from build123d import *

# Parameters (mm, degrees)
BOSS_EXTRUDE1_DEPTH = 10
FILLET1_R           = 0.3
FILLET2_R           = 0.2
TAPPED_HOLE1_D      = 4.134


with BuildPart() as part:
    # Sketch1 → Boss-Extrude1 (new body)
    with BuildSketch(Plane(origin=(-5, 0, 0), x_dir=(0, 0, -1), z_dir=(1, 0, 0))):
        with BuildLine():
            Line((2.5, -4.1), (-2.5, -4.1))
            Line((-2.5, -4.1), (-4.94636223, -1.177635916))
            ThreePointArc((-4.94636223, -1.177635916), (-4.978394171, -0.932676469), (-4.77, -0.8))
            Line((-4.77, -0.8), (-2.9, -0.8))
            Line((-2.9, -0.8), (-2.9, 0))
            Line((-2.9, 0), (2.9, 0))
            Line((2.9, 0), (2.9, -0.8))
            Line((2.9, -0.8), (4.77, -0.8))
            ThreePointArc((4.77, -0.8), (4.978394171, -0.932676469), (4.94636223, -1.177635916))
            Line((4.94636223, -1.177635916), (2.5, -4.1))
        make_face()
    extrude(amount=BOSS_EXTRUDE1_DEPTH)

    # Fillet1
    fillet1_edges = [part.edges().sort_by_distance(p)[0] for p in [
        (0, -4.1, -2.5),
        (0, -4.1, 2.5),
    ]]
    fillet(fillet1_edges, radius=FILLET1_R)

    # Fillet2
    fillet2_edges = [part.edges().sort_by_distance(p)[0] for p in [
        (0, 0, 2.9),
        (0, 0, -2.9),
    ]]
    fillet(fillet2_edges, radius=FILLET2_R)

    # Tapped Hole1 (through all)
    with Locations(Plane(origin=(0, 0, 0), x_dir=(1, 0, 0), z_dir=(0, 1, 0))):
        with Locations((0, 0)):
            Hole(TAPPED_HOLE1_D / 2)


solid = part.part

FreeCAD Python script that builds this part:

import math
import FreeCAD as App
import Part
import Sketcher

V = App.Vector
Q = App.Units.Quantity


def edges_at(feature, points):
    """Names of the edges that pass closest to the given points."""
    edges = feature.Shape.Edges
    near = lambda p: min(range(len(edges)), key=lambda i: edges[i].distToShape(Part.Vertex(*p))[0])
    return sorted({f"Edge{near(p) + 1}" for p in points})

doc = App.newDocument("Part")
body = doc.addObject("PartDesign::Body", "Body")

sketch1 = doc.addObject("Sketcher::SketchObject", "Sketch")
body.addObject(sketch1)
sketch1.AttachmentSupport = (doc.YZ_Plane, [""])
sketch1.MapMode = "FlatFace"
sketch1.AttachmentOffset = App.Placement(V(0, 0, -5), App.Rotation())
sketch1.addGeometry([
    Part.LineSegment(V(-4.1, 2.5, 0), V(-4.1, -2.5, 0)),
    Part.LineSegment(V(-4.1, -2.5, 0), V(-1.177636, -4.946362, 0)),
    Part.ArcOfCircle(Part.Circle(V(-1.03, -4.77, 0), V(0, 0, 1), 0.23), math.radians(-129.933292), math.radians(0)),
    Part.LineSegment(V(-0.8, -4.77, 0), V(-0.8, -2.9, 0)),
    Part.LineSegment(V(-0.8, -2.9, 0), V(0, -2.9, 0)),
    Part.LineSegment(V(0, -2.9, 0), V(0, 2.9, 0)),
    Part.LineSegment(V(0, 2.9, 0), V(-0.8, 2.9, 0)),
    Part.LineSegment(V(-0.8, 2.9, 0), V(-0.8, 4.77, 0)),
    Part.ArcOfCircle(Part.Circle(V(-1.03, 4.77, 0), V(0, 0, 1), 0.23), math.radians(0), math.radians(129.933292)),
    Part.LineSegment(V(-1.177636, 4.946362, 0), V(-4.1, 2.5, 0)),
], False)
sketch1.addConstraint([
    Sketcher.Constraint("Coincident", 0, 2, 1, 1),
    Sketcher.Constraint("Tangent", 1, 2, 2, 1),
    Sketcher.Constraint("Tangent", 2, 2, 3, 1),
    Sketcher.Constraint("Coincident", 3, 2, 4, 1),
    Sketcher.Constraint("Coincident", 4, 2, 5, 1),
    Sketcher.Constraint("Coincident", 5, 2, 6, 1),
    Sketcher.Constraint("Coincident", 6, 2, 7, 1),
    Sketcher.Constraint("Tangent", 7, 2, 8, 1),
    Sketcher.Constraint("Tangent", 8, 2, 9, 1),
    Sketcher.Constraint("Coincident", 9, 2, 0, 1),
    Sketcher.Constraint("Vertical", 0),
    Sketcher.Constraint("Vertical", 3),
    Sketcher.Constraint("Horizontal", 4),
    Sketcher.Constraint("Vertical", 5),
    Sketcher.Constraint("Horizontal", 6),
    Sketcher.Constraint("Vertical", 7),
    Sketcher.Constraint("Equal", 2, 8),
    Sketcher.Constraint("Symmetric", 4, 2, 5, 2, -1, 1),
    Sketcher.Constraint("Symmetric", 2, 3, 8, 3, -1),
    Sketcher.Constraint("Vertical", 1, 2, 8, 2),
    Sketcher.Constraint("DistanceY", 0, 2, 0, 1, Q("5 mm")),
    Sketcher.Constraint("Radius", 2, Q("0.23 mm")),
    Sketcher.Constraint("DistanceX", 4, 1, 4, 2, Q("0.8 mm")),
    Sketcher.Constraint("DistanceY", 5, 1, 5, 2, Q("5.8 mm")),
    Sketcher.Constraint("DistanceY", 3, 1, 3, 2, Q("1.87 mm")),
    Sketcher.Constraint("DistanceX", 0, 2, -1, 1, Q("4.1 mm")),
])
pad1 = doc.addObject("PartDesign::Pad", "Pad")
body.addObject(pad1)
pad1.Profile = sketch1
pad1.Length = 10
doc.recompute()

fillet = doc.addObject("PartDesign::Fillet", "Fillet")
body.addObject(fillet)
fillet.Base = (pad1, edges_at(pad1, [(0, -4.1, -2.5), (0, -4.1, 2.5)]))
fillet.Radius = 0.3
doc.recompute()

fillet2 = doc.addObject("PartDesign::Fillet", "Fillet001")
body.addObject(fillet2)
fillet2.Base = (fillet, edges_at(fillet, [(0, 0, 2.9), (0, 0, -2.9)]))
fillet2.Radius = 0.2

sketch2 = doc.addObject("Sketcher::SketchObject", "Sketch001")
body.addObject(sketch2)
sketch2.AttachmentSupport = (doc.XZ_Plane, [""])
sketch2.MapMode = "FlatFace"
sketch2.addGeometry(Part.Circle(V(0, 0, 0), V(0, 0, 1), 2.067), False)
sketch2.addConstraint([
    Sketcher.Constraint("Coincident", 0, 3, -1, 1),
    Sketcher.Constraint("Diameter", 0, Q("4.134 mm")),
])
doc.recompute()
hole = doc.addObject("PartDesign::Hole", "Hole")
body.addObject(hole)
hole.Profile = sketch2
hole.ThreadType = "None"
hole.Diameter = 4.134
hole.DepthType = "ThroughAll"
hole.Reversed = True

doc.recompute()
